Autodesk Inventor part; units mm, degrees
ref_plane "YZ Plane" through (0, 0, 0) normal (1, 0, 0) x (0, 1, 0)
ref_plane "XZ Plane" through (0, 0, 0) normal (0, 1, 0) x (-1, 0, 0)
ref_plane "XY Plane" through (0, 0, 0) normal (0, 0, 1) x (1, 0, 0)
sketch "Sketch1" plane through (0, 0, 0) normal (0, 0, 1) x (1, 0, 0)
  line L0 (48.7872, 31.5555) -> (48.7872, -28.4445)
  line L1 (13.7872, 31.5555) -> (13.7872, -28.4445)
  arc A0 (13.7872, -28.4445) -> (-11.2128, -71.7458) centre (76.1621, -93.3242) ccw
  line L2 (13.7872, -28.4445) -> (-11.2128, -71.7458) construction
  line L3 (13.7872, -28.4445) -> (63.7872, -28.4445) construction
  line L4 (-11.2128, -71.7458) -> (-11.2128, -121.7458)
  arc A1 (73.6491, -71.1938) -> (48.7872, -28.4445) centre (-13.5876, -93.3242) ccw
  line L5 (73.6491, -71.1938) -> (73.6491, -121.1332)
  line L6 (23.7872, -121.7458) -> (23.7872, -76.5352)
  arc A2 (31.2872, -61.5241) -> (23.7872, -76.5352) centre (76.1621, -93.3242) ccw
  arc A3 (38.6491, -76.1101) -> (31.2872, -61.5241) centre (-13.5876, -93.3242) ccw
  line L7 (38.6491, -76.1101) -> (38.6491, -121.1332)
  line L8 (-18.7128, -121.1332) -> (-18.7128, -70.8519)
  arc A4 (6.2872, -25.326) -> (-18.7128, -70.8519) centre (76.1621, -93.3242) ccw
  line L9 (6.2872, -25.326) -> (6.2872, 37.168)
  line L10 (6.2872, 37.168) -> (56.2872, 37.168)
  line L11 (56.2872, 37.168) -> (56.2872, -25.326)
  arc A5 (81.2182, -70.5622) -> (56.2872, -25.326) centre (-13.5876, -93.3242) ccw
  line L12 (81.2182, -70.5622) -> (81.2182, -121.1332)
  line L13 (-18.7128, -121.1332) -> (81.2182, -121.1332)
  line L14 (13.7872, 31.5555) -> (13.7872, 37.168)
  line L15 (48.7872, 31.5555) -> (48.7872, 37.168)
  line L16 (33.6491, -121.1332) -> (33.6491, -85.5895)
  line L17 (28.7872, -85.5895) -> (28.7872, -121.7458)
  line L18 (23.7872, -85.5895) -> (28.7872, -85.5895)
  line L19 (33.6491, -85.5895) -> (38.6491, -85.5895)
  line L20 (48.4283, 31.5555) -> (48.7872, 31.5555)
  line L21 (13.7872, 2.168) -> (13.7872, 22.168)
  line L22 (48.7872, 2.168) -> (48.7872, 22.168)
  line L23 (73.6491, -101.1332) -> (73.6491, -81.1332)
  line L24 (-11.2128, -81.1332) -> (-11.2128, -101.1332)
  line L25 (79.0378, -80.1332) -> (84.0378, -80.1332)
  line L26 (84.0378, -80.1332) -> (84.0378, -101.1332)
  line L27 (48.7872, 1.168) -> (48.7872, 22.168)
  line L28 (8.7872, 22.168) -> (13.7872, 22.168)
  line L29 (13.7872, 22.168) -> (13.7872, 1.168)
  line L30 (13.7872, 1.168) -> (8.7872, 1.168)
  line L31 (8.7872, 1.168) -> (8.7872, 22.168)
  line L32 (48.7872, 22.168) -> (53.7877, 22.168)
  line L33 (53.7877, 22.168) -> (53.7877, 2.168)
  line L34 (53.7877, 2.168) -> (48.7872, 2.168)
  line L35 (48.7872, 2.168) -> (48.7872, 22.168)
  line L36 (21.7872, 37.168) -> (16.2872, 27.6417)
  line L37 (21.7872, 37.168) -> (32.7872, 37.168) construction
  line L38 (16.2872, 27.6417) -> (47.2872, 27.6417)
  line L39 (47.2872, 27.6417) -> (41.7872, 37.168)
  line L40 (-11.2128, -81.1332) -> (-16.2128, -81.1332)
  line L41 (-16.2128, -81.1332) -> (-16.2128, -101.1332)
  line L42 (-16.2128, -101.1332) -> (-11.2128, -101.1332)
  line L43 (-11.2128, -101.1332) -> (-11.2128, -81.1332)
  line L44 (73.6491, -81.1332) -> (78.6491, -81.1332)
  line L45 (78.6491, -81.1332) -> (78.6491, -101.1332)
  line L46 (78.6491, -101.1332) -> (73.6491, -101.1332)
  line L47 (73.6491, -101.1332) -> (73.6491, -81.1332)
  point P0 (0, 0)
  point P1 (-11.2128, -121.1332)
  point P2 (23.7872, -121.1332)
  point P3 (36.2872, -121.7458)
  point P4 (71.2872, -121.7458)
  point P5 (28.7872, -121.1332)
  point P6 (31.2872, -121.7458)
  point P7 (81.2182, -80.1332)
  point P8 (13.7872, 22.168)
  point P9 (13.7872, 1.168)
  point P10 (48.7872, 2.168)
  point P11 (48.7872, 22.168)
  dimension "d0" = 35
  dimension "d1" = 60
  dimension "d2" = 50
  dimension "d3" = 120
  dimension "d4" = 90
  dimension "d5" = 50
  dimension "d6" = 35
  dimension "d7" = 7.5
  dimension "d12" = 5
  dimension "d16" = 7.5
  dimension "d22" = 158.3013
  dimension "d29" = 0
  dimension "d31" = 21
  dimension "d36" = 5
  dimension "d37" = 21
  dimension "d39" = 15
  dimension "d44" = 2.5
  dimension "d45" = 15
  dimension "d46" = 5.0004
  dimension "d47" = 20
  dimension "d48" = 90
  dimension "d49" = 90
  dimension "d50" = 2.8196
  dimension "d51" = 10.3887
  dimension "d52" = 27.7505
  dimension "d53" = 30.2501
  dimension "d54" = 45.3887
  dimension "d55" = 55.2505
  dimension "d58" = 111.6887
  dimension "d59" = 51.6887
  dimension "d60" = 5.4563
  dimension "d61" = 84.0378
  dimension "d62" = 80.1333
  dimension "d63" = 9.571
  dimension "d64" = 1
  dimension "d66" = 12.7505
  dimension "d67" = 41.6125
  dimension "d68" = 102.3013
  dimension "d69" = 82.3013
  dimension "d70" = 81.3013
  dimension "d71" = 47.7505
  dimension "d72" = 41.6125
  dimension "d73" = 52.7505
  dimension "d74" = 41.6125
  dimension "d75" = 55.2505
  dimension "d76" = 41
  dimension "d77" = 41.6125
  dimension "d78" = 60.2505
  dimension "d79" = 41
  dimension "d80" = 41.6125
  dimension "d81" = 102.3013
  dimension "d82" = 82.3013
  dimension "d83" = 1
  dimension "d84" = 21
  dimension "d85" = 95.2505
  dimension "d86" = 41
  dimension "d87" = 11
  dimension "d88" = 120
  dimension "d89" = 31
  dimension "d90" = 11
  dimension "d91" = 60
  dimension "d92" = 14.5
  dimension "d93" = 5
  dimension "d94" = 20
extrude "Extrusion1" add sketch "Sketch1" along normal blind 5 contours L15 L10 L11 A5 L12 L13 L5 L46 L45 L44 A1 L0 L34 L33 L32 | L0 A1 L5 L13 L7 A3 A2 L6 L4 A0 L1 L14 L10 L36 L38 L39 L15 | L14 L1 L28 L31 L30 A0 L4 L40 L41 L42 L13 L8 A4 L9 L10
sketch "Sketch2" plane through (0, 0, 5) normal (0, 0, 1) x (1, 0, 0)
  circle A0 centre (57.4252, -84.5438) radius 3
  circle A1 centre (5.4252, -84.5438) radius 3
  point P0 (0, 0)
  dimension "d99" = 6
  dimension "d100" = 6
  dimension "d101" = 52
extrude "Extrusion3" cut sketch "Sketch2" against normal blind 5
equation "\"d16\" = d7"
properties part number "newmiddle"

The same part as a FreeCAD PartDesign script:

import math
import FreeCAD as App
import Part
import Sketcher

V = App.Vector
Q = App.Units.Quantity


def add_polygon(sketch, points):
    """Adds a closed chain of lines whose ends are joined by coincident constraints."""
    first, n = sketch.GeometryCount, len(points)
    for a, b in zip(points, points[1:] + points[:1]):
        sketch.addGeometry(Part.LineSegment(App.Vector(*a, 0), App.Vector(*b, 0)), False)
    for i in range(n):
        sketch.addConstraint(Sketcher.Constraint("Coincident", first + i, 2, first + (i + 1) % n, 1))

doc = App.newDocument("Part")
body = doc.addObject("PartDesign::Body", "Body")

sketch1 = doc.addObject("Sketcher::SketchObject", "Sketch")
body.addObject(sketch1)
sketch1.AttachmentSupport = (doc.XY_Plane, [""])
sketch1.MapMode = "FlatFace"
sketch1.addGeometry(Part.LineSegment(V(56, 37, 0), V(42, 37, 0)), False)
sketch1.addGeometry(Part.LineSegment(V(42, 37, 0), V(47, 28, 0)), False)
sketch1.addGeometry(Part.LineSegment(V(47, 28, 0), V(16, 28, 0)), False)
sketch1.addGeometry(Part.LineSegment(V(16, 28, 0), V(22, 37, 0)), False)
sketch1.addGeometry(Part.LineSegment(V(22, 37, 0), V(6, 37, 0)), False)
sketch1.addGeometry(Part.LineSegment(V(6, 37, 0), V(6, -25, 0)), False)
sketch1.addGeometry(Part.ArcOfCircle(Part.Circle(V(76, -93, 0), V(0, 0, 1), 98), math.radians(136), math.radians(167)), False)
sketch1.addGeometry(Part.LineSegment(V(-19, -71, 0), V(-19, -121, 0)), False)
sketch1.addGeometry(Part.LineSegment(V(-19, -121, 0), V(24, -121, 0)), False)
sketch1.addGeometry(Part.LineSegment(V(24, -121, 0), V(24, -77, 0)), False)
sketch1.addGeometry(Part.ArcOfCircle(Part.Circle(V(76, -93, 0), V(0, 0, 1), 55), math.radians(144.68), math.radians(162.23)), False)
sketch1.addGeometry(Part.ArcOfCircle(Part.Circle(V(-14, -93, 0), V(0, 0, 1), 55), math.radians(18.24), math.radians(35.32)), False)
sketch1.addGeometry(Part.LineSegment(V(39, -76, 0), V(39, -121, 0)), False)
sketch1.addGeometry(Part.LineSegment(V(39, -121, 0), V(81, -121, 0)), False)
sketch1.addGeometry(Part.LineSegment(V(81, -121, 0), V(81, -71, 0)), False)
sketch1.addGeometry(Part.ArcOfCircle(Part.Circle(V(-14, -93, 0), V(0, 0, 1), 97), math.radians(14), math.radians(44)), False)
sketch1.addGeometry(Part.LineSegment(V(56, -25, 0), V(56, 37, 0)), False)
add_polygon(sketch1, [(79, -101), (74, -101), (74, -81), (79, -81)])
add_polygon(sketch1, [(54, 2), (49, 2), (49, 22), (54, 22)])
add_polygon(sketch1, [(-11, -81), (-11, -101), (-16, -101), (-16, -81)])
add_polygon(sketch1, [(14, 1), (9, 1), (9, 22), (14, 22)])
sketch1.addConstraint([
    Sketcher.Constraint("Coincident", 0, 2, 1, 1),
    Sketcher.Constraint("Coincident", 1, 2, 2, 1),
    Sketcher.Constraint("Coincident", 2, 2, 3, 1),
    Sketcher.Constraint("Coincident", 3, 2, 4, 1),
    Sketcher.Constraint("Coincident", 4, 2, 5, 1),
    Sketcher.Constraint("Coincident", 5, 2, 6, 1),
    Sketcher.Constraint("Coincident", 6, 2, 7, 1),
    Sketcher.Constraint("Coincident", 7, 2, 8, 1),
    Sketcher.Constraint("Coincident", 8, 2, 9, 1),
    Sketcher.Constraint("Coincident", 9, 2, 10, 2),
    Sketcher.Constraint("Coincident", 10, 1, 11, 2),
    Sketcher.Constraint("Coincident", 11, 1, 12, 1),
    Sketcher.Constraint("Coincident", 12, 2, 13, 1),
    Sketcher.Constraint("Coincident", 13, 2, 14, 1),
    Sketcher.Constraint("Coincident", 14, 2, 15, 1),
    Sketcher.Constraint("Coincident", 15, 2, 16, 1),
    Sketcher.Constraint("Coincident", 16, 2, 0, 1),
    Sketcher.Constraint("Horizontal", 0),
    Sketcher.Constraint("Horizontal", 2),
    Sketcher.Constraint("Horizontal", 4),
    Sketcher.Constraint("Vertical", 5),
    Sketcher.Constraint("Vertical", 7),
    Sketcher.Constraint("Horizontal", 8),
    Sketcher.Constraint("Vertical", 9),
    Sketcher.Constraint("Vertical", 12),
    Sketcher.Constraint("Horizontal", 13),
    Sketcher.Constraint("Vertical", 14),
    Sketcher.Constraint("Vertical", 16),
    Sketcher.Constraint("Horizontal", 17),
    Sketcher.Constraint("Vertical", 18),
    Sketcher.Constraint("Horizontal", 19),
    Sketcher.Constraint("Vertical", 20),
    Sketcher.Constraint("Horizontal", 21),
    Sketcher.Constraint("Vertical", 22),
    Sketcher.Constraint("Horizontal", 23),
    Sketcher.Constraint("Vertical", 24),
    Sketcher.Constraint("Vertical", 25),
    Sketcher.Constraint("Horizontal", 26),
    Sketcher.Constraint("Vertical", 27),
    Sketcher.Constraint("Horizontal", 28),
    Sketcher.Constraint("Horizontal", 29),
    Sketcher.Constraint("Vertical", 30),
    Sketcher.Constraint("Horizontal", 31),
    Sketcher.Constraint("Vertical", 32),
    Sketcher.Constraint("Coincident", 10, 3, 6, 3),
    Sketcher.Constraint("Equal", 6, 15),
    Sketcher.Constraint("Horizontal", 10, 3, 15, 3),
    Sketcher.Constraint("Horizontal", 0, 2, 3, 2),
    Sketcher.Constraint("Horizontal", 8, 2, 12, 2),
    Sketcher.Constraint("Horizontal", 5, 2, 15, 2),
    Sketcher.Constraint("Horizontal", 20, 2, 25, 2),
    Sketcher.Constraint("Horizontal", 19, 2, 27, 2),
    Sketcher.Constraint("Horizontal", 23, 2, 30, 2),
    Sketcher.Constraint("Equal", 19, 26),
    Sketcher.Constraint("Equal", 28, 29),
    Sketcher.Constraint("Equal", 20, 22),
    Sketcher.Constraint("Equal", 1, 3),
    Sketcher.Constraint("DistanceX", 2, 2, 2, 1, Q("31 mm")),
    Sketcher.Constraint("DistanceX", 17, 2, 17, 1, Q("5 mm")),
    Sketcher.Constraint("DistanceY", 18, 1, 18, 2, Q("20 mm")),
    Sketcher.Constraint("DistanceY", 30, 1, 30, 2, Q("21 mm")),
    Sketcher.Constraint("Angle", 1, Q("-60 deg")),
    Sketcher.Constraint("Distance", 1, Q("11 mm")),
    Sketcher.Constraint("DistanceX", 0, 2, 0, 1, Q("14.5 mm")),
    Sketcher.Constraint("Radius", 10, Q("55 mm")),
    Sketcher.Constraint("DistanceX", 4, 2, 1, 2, Q("41 mm")),
    Sketcher.Constraint("DistanceX", 6, 2, 10, 1, Q("50 mm")),
    Sketcher.Constraint("DistanceY", 13, 2, 17, 2, Q("20 mm")),
    Sketcher.Constraint("DistanceX", 12, 2, 17, 2, Q("35 mm")),
    Sketcher.Constraint("DistanceY", 21, 2, 0, 2, Q("35 mm")),
    Sketcher.Constraint("DistanceX", 25, 2, 8, 2, Q("35 mm")),
    Sketcher.Constraint("Radius", 6, Q("97.5 mm")),
    Sketcher.Constraint("DistanceX", 9, 2, 10, 1, Q("7.5 mm")),
    Sketcher.Constraint("DistanceX", 21, 2, 15, 2, Q("7.5 mm")),
    Sketcher.Constraint("DistanceX", 5, 2, 29, 2, Q("2.5 mm")),
    Sketcher.Constraint("DistanceX", 21, 2, 21, 1, Q("5.0005 mm")),
    Sketcher.Constraint("DistanceX", 6, 2, 5, 2, Q("25 mm")),
    Sketcher.Constraint("Radius", 11, Q("54.9983 mm")),
    Sketcher.Constraint("DistanceY", 15, 3, 10, 1, Q("31.8 mm")),
    Sketcher.Constraint("DistanceX", 13, 1, 13, 2, Q("42.569 mm")),
    Sketcher.Constraint("DistanceY", 5, 2, 5, 1, Q("62.494 mm")),
    Sketcher.Constraint("DistanceY", 9, 1, 9, 2, Q("44.598 mm")),
    Sketcher.Constraint("DistanceY", 12, 2, 12, 1, Q("45.023 mm")),
    Sketcher.Constraint("DistanceY", 14, 1, 14, 2, Q("50.571 mm")),
    Sketcher.Constraint("DistanceY", 11, 1, -1, 1, Q("76.11 mm")),
    Sketcher.Constraint("DistanceX", -1, 1, 6, 3, Q("76.162 mm")),
])
pad1 = doc.addObject("PartDesign::Pad", "Pad")
body.addObject(pad1)
pad1.Profile = sketch1
pad1.Length = 5

sketch2 = doc.addObject("Sketcher::SketchObject", "Sketch001")
body.addObject(sketch2)
sketch2.AttachmentSupport = (doc.XY_Plane, [""])
sketch2.MapMode = "FlatFace"
sketch2.AttachmentOffset = App.Placement(V(0, 0, 5), App.Rotation())
sketch2.addGeometry([
    Part.Circle(V(57.4, -84.5, 0), V(0, 0, 1), 3),
    Part.Circle(V(5.4, -84.5, 0), V(0, 0, 1), 3),
], False)
sketch2.addConstraint([
    Sketcher.Constraint("Equal", 0, 1),
    Sketcher.Constraint("Horizontal", 0, 3, 1, 3),
    Sketcher.Constraint("Diameter", 0, Q("6 mm")),
    Sketcher.Constraint("DistanceX", 1, 3, 0, 3, Q("52 mm")),
    Sketcher.Constraint("DistanceX", -1, 1, 0, 3, Q("57.4252 mm")),
    Sketcher.Constraint("DistanceY", 0, 3, -1, 1, Q("84.5438 mm")),
])
pocket1 = doc.addObject("PartDesign::Pocket", "Pocket")
body.addObject(pocket1)
pocket1.Profile = sketch2
pocket1.Length = 5

doc.recompute()
